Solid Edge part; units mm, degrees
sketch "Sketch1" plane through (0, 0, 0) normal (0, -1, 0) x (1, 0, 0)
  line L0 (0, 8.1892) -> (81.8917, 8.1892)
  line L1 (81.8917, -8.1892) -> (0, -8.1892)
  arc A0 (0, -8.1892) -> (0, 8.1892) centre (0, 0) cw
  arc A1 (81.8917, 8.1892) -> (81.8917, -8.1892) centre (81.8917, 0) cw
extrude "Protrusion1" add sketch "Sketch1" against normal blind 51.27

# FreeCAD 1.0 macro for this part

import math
import FreeCAD as App
import Part
import Sketcher

doc = App.newDocument("Part")
body = doc.addObject("PartDesign::Body", "Body")

# Sketch on XZ plane
sketch1 = body.newObject("Sketcher::SketchObject", "Sketch")
sketch1.AttachmentSupport = (doc.getObject("XZ_Plane"), [""])
sketch1.MapMode = "FlatFace"
sketch1.addGeometry(Part.LineSegment(App.Vector(81.8917, 8.1892, 0), App.Vector(0, 8.1892, 0)), False)
sketch1.addGeometry(Part.ArcOfCircle(Part.Circle(App.Vector(0, 0, 0), App.Vector(0, 0, 1), 8.1892), math.radians(90), math.radians(270)), False)
sketch1.addGeometry(Part.LineSegment(App.Vector(0, -8.1892, 0), App.Vector(81.8917, -8.1892, 0)), False)
sketch1.addGeometry(Part.ArcOfCircle(Part.Circle(App.Vector(81.8917, 0, 0), App.Vector(0, 0, 1), 8.1892), math.radians(-90), math.radians(90)), False)
sketch1.addConstraint(Sketcher.Constraint("Tangent", 0, 2, 1, 1))
sketch1.addConstraint(Sketcher.Constraint("Tangent", 1, 2, 2, 1))
sketch1.addConstraint(Sketcher.Constraint("Tangent", 2, 2, 3, 1))
sketch1.addConstraint(Sketcher.Constraint("Tangent", 3, 2, 0, 1))
sketch1.addConstraint(Sketcher.Constraint("Horizontal", 0))
sketch1.addConstraint(Sketcher.Constraint("Horizontal", 2))
sketch1.addConstraint(Sketcher.Constraint("Coincident", 1, 3, -1, 1))
sketch1.addConstraint(Sketcher.Constraint("Radius", 1, 8.1892))
sketch1.addConstraint(Sketcher.Constraint("DistanceX", 0, 2, 0, 1, 81.8917))
pad1 = body.newObject("PartDesign::Pad", "Pad")
pad1.Profile = sketch1
pad1.Length = 51.27
pad1.Reversed = True

doc.recompute()
